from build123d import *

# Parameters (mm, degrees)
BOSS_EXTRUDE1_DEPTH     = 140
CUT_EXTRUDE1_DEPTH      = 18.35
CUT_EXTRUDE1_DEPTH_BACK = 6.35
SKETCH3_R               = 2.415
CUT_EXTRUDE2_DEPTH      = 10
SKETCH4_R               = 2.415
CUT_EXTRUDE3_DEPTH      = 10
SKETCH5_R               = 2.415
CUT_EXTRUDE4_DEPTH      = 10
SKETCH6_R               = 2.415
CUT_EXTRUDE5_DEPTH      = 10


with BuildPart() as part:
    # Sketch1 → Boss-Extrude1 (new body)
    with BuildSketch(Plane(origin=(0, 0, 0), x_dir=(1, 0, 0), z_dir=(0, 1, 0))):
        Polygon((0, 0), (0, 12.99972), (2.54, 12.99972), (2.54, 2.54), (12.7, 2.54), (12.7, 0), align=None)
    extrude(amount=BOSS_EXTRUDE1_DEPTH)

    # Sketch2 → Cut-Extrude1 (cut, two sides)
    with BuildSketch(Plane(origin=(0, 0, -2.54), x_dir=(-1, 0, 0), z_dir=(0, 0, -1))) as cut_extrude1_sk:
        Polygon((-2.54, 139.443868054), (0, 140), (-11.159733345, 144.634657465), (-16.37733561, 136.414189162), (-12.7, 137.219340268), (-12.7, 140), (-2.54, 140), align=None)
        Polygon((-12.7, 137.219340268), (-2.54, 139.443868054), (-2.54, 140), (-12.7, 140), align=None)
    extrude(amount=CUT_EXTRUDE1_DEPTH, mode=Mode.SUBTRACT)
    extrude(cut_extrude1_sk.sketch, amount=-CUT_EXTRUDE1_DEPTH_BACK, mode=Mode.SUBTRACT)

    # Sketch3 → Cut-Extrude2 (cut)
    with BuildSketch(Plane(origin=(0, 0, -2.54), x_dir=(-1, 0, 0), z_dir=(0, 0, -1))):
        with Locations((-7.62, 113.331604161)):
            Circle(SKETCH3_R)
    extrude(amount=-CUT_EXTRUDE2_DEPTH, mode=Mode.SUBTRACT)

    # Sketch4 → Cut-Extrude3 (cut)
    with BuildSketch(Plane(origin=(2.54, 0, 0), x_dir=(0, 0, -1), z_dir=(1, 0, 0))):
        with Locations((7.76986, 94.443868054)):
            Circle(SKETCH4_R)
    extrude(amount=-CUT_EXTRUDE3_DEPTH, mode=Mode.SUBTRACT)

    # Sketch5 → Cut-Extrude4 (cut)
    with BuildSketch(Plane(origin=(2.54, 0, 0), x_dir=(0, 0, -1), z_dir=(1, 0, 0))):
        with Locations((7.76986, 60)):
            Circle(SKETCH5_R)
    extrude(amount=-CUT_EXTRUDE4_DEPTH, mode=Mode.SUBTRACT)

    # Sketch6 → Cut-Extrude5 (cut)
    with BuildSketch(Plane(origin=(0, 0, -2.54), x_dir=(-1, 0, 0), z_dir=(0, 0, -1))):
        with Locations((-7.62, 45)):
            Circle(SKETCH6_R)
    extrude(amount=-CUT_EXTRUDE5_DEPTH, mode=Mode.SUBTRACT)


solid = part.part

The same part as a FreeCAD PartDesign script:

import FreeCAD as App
import Part
import Sketcher
Q = App.Units.Quantity


def add_polygon(sketch, points):
    """Adds a closed chain of lines whose ends are joined by coincident constraints."""
    first, n = sketch.GeometryCount, len(points)
    for a, b in zip(points, points[1:] + points[:1]):
        sketch.addGeometry(Part.LineSegment(App.Vector(*a, 0), App.Vector(*b, 0)), False)
    for i in range(n):
        sketch.addConstraint(Sketcher.Constraint("Coincident", first + i, 2, first + (i + 1) % n, 1))

doc = App.newDocument("Part")
body = doc.addObject("PartDesign::Body", "Body")

# Sketch on XZ plane
sketch1 = doc.addObject("Sketcher::SketchObject", "Sketch")
body.addObject(sketch1)
sketch1.AttachmentSupport = (doc.XZ_Plane, [""])
sketch1.MapMode = "FlatFace"
add_polygon(sketch1, [(0, -13), (0, 0), (12.7, 0), (12.7, -2.5), (2.5, -2.5), (2.5, -13)])  # lines 0-5
sketch1.addConstraint(Sketcher.Constraint("Vertical", 0))
sketch1.addConstraint(Sketcher.Constraint("Horizontal", 1))
sketch1.addConstraint(Sketcher.Constraint("Vertical", 2))
sketch1.addConstraint(Sketcher.Constraint("Horizontal", 3))
sketch1.addConstraint(Sketcher.Constraint("Vertical", 4))
sketch1.addConstraint(Sketcher.Constraint("Horizontal", 5))
sketch1.addConstraint(Sketcher.Constraint("Coincident", 0, 2, -1, 1))
sketch1.addConstraint(Sketcher.Constraint("Equal", 5, 2))
sketch1.addConstraint(Sketcher.Constraint("DistanceX", 1, 1, 1, 2, Q("0.5 in")))
sketch1.addConstraint(Sketcher.Constraint("DistanceX", 3, 2, 3, 1, Q("0.4 in")))
sketch1.addConstraint(Sketcher.Constraint("DistanceY", 0, 1, 0, 2, Q("0.5118 in")))
pad1 = doc.addObject("PartDesign::Pad", "Pad")
body.addObject(pad1)
pad1.Profile = sketch1
pad1.Length = 140
pad1.Reversed = True

# Sketch on XY plane
sketch2 = doc.addObject("Sketcher::SketchObject", "Sketch001")
body.addObject(sketch2)
sketch2.AttachmentSupport = (doc.XY_Plane, [""])
sketch2.MapMode = "FlatFace"
sketch2.AttachmentOffset = App.Placement(App.Vector(0, 0, -0.1 * 25.4), App.Rotation())
add_polygon(sketch2, [(2.5, 139.4), (0, 140), (11.2, 144.6), (16.4, 136.4), (12.7, 137.2)])  # lines 0-4
sketch2.addConstraint(Sketcher.Constraint("PointOnObject", 0, 2, -2))
sketch2.addConstraint(Sketcher.Constraint("Parallel", 0, 3))
sketch2.addConstraint(Sketcher.Constraint("Parallel", 3, 4))
sketch2.addConstraint(Sketcher.Constraint("DistanceX", -1, 1, 3, 2, Q("0.5 in")))
sketch2.addConstraint(Sketcher.Constraint("DistanceX", -1, 1, 4, 2, Q("0.1 in")))
sketch2.addConstraint(Sketcher.Constraint("Angle", 0, Q("167.65 deg")))
sketch2.addConstraint(Sketcher.Constraint("DistanceY", -1, 1, 0, 2, 140.0))
sketch2.addConstraint(Sketcher.Constraint("Distance", 1, 12.083861))
sketch2.addConstraint(Sketcher.Constraint("DistanceY", -1, 1, 2, 2, 136.414189))
sketch2.addConstraint(Sketcher.Constraint("DistanceY", 2, 2, 1, 2, 8.220468))
pocket1 = doc.addObject("PartDesign::Pocket", "Pocket")
body.addObject(pocket1)
pocket1.Profile = sketch2
pocket1.Type = "ThroughAll"
pocket1.Midplane = True

# Sketch on XY plane
sketch3 = doc.addObject("Sketcher::SketchObject", "Sketch002")
body.addObject(sketch3)
sketch3.AttachmentSupport = (doc.XY_Plane, [""])
sketch3.MapMode = "FlatFace"
sketch3.AttachmentOffset = App.Placement(App.Vector(0, 0, -0.1 * 25.4), App.Rotation())
sketch3.addGeometry(Part.Circle(App.Vector(7.6, 113.3, 0), App.Vector(0, 0, 1), 2.4), False)
sketch3.addConstraint(Sketcher.Constraint("DistanceX", -1, 1, 0, 3, Q("0.3 in")))
sketch3.addConstraint(Sketcher.Constraint("Diameter", 0, 4.83))
sketch3.addConstraint(Sketcher.Constraint("DistanceY", -1, 1, 0, 3, 113.331604))
pocket2 = doc.addObject("PartDesign::Pocket", "Pocket001")
body.addObject(pocket2)
pocket2.Profile = sketch3
pocket2.Length = 10
pocket2.Reversed = True

# Sketch on YZ plane
sketch4 = doc.addObject("Sketcher::SketchObject", "Sketch003")
body.addObject(sketch4)
sketch4.AttachmentSupport = (doc.YZ_Plane, [""])
sketch4.MapMode = "FlatFace"
sketch4.AttachmentOffset = App.Placement(App.Vector(0, 0, 0.1 * 25.4), App.Rotation())
sketch4.addGeometry(Part.Circle(App.Vector(94.4, -7.8, 0), App.Vector(0, 0, 1), 2.4), False)
sketch4.addConstraint(Sketcher.Constraint("Diameter", 0, 4.83))
sketch4.addConstraint(Sketcher.Constraint("DistanceY", 0, 3, -1, 1, Q("0.3059 in")))
sketch4.addConstraint(Sketcher.Constraint("DistanceX", -1, 1, 0, 3, 94.443868))
pocket3 = doc.addObject("PartDesign::Pocket", "Pocket002")
body.addObject(pocket3)
pocket3.Profile = sketch4
pocket3.Length = 10

# Sketch on YZ plane
sketch5 = doc.addObject("Sketcher::SketchObject", "Sketch004")
body.addObject(sketch5)
sketch5.AttachmentSupport = (doc.YZ_Plane, [""])
sketch5.MapMode = "FlatFace"
sketch5.AttachmentOffset = App.Placement(App.Vector(0, 0, 0.1 * 25.4), App.Rotation())
sketch5.addGeometry(Part.Circle(App.Vector(60, -7.8, 0), App.Vector(0, 0, 1), 2.4), False)
sketch5.addConstraint(Sketcher.Constraint("Diameter", 0, 4.83))
sketch5.addConstraint(Sketcher.Constraint("DistanceY", 0, 3, -1, 1, Q("0.3059 in")))
sketch5.addConstraint(Sketcher.Constraint("DistanceX", -1, 1, 0, 3, 60.0))
pocket4 = doc.addObject("PartDesign::Pocket", "Pocket003")
body.addObject(pocket4)
pocket4.Profile = sketch5
pocket4.Length = 10

# Sketch on XY plane
sketch6 = doc.addObject("Sketcher::SketchObject", "Sketch005")
body.addObject(sketch6)
sketch6.AttachmentSupport = (doc.XY_Plane, [""])
sketch6.MapMode = "FlatFace"
sketch6.AttachmentOffset = App.Placement(App.Vector(0, 0, -0.1 * 25.4), App.Rotation())
sketch6.addGeometry(Part.Circle(App.Vector(7.6, 45, 0), App.Vector(0, 0, 1), 2.4), False)
sketch6.addConstraint(Sketcher.Constraint("DistanceX", -1, 1, 0, 3, Q("0.3 in")))
sketch6.addConstraint(Sketcher.Constraint("Diameter", 0, 4.83))
sketch6.addConstraint(Sketcher.Constraint("DistanceY", -1, 1, 0, 3, 45.0))
pocket5 = doc.addObject("PartDesign::Pocket", "Pocket004")
body.addObject(pocket5)
pocket5.Profile = sketch6
pocket5.Length = 10
pocket5.Reversed = True

doc.recompute()
